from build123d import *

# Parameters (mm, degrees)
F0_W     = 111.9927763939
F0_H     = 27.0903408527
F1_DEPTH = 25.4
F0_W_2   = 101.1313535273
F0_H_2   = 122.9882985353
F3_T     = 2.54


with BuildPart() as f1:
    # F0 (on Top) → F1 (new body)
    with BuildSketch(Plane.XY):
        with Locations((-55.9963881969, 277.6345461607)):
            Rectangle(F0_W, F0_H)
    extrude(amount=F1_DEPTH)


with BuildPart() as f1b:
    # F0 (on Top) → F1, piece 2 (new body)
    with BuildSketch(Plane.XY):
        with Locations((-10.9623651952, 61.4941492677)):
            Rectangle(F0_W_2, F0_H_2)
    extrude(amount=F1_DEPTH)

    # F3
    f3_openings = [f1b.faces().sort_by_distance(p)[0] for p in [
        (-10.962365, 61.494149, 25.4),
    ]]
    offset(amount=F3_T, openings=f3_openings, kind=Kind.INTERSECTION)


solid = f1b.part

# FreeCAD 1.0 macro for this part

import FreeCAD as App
import Part
import Sketcher
from FreeCAD import Vector
Q = App.Units.Quantity


def faces_at(feature, points):
    """Names of the faces that lie closest to the given points."""
    faces = feature.Shape.Faces
    near = lambda p: min(range(len(faces)), key=lambda i: faces[i].distToShape(Part.Vertex(*p))[0])
    return sorted({f"Face{near(p) + 1}" for p in points})


def add_polygon(sketch, points):
    """Adds a closed chain of lines whose ends are joined by coincident constraints."""
    first, n = sketch.GeometryCount, len(points)
    for a, b in zip(points, points[1:] + points[:1]):
        sketch.addGeometry(Part.LineSegment(App.Vector(*a, 0), App.Vector(*b, 0)), False)
    for i in range(n):
        sketch.addConstraint(Sketcher.Constraint("Coincident", first + i, 2, first + (i + 1) % n, 1))

doc = App.newDocument("Part")
body = doc.addObject("PartDesign::Body", "Body")

# Sketch on XY plane
sketch1 = doc.addObject("Sketcher::SketchObject", "Sketch")
body.addObject(sketch1)
sketch1.AttachmentSupport = (doc.XY_Plane, [""])
sketch1.MapMode = "FlatFace"
add_polygon(sketch1, [(-112, 291), (-112, 264), (0, 264), (0, 291)])  # lines 0-3
sketch1.addConstraint(Sketcher.Constraint("Vertical", 0))
sketch1.addConstraint(Sketcher.Constraint("Horizontal", 1))
sketch1.addConstraint(Sketcher.Constraint("Vertical", 2))
sketch1.addConstraint(Sketcher.Constraint("Horizontal", 3))
sketch1.addConstraint(Sketcher.Constraint("PointOnObject", 1, 2, -2))
sketch1.addConstraint(Sketcher.Constraint("DistanceY", 0, 2, 0, 1, Q("27.090341 mm")))
sketch1.addConstraint(Sketcher.Constraint("DistanceX", 1, 1, 1, 2, Q("111.992776 mm")))
sketch1.addConstraint(Sketcher.Constraint("DistanceY", -1, 1, 0, 2, Q("264.089376 mm")))
pad1 = doc.addObject("PartDesign::Pad", "Pad")
body.addObject(pad1)
pad1.Profile = sketch1
pad1.Length = Q("1 in")
body2 = doc.addObject("PartDesign::Body", "Body001")

# Sketch on XY plane
sketch2 = doc.addObject("Sketcher::SketchObject", "Sketch001")
body2.addObject(sketch2)
sketch2.AttachmentSupport = (doc.getObject("XY_Plane001"), [""])
sketch2.MapMode = "FlatFace"
add_polygon(sketch2, [(-62, 123), (-62, 0), (40, 0), (40, 123)])  # lines 0-3
sketch2.addConstraint(Sketcher.Constraint("Vertical", 0))
sketch2.addConstraint(Sketcher.Constraint("Horizontal", 1))
sketch2.addConstraint(Sketcher.Constraint("Vertical", 2))
sketch2.addConstraint(Sketcher.Constraint("Horizontal", 3))
sketch2.addConstraint(Sketcher.Constraint("PointOnObject", 0, 2, -1))
sketch2.addConstraint(Sketcher.Constraint("DistanceY", 0, 2, 0, 1, Q("122.988299 mm")))
sketch2.addConstraint(Sketcher.Constraint("DistanceX", 1, 1, 1, 2, Q("101.131354 mm")))
sketch2.addConstraint(Sketcher.Constraint("DistanceX", 0, 2, -1, 1, Q("61.528042 mm")))
pad2 = doc.addObject("PartDesign::Pad", "Pad001")
body2.addObject(pad2)
pad2.Profile = sketch2
pad2.Length = Q("1 in")
doc.recompute()

thickness = doc.addObject("PartDesign::Thickness", "Thickness")
body2.addObject(thickness)
thickness.Base = (pad2, faces_at(pad2, [(-10.962, 61.494, 25.4)]))
thickness.Value = Q("0.1 in")
thickness.Reversed = False
thickness.Join = "Intersection"
body.Visibility = False

doc.recompute()
